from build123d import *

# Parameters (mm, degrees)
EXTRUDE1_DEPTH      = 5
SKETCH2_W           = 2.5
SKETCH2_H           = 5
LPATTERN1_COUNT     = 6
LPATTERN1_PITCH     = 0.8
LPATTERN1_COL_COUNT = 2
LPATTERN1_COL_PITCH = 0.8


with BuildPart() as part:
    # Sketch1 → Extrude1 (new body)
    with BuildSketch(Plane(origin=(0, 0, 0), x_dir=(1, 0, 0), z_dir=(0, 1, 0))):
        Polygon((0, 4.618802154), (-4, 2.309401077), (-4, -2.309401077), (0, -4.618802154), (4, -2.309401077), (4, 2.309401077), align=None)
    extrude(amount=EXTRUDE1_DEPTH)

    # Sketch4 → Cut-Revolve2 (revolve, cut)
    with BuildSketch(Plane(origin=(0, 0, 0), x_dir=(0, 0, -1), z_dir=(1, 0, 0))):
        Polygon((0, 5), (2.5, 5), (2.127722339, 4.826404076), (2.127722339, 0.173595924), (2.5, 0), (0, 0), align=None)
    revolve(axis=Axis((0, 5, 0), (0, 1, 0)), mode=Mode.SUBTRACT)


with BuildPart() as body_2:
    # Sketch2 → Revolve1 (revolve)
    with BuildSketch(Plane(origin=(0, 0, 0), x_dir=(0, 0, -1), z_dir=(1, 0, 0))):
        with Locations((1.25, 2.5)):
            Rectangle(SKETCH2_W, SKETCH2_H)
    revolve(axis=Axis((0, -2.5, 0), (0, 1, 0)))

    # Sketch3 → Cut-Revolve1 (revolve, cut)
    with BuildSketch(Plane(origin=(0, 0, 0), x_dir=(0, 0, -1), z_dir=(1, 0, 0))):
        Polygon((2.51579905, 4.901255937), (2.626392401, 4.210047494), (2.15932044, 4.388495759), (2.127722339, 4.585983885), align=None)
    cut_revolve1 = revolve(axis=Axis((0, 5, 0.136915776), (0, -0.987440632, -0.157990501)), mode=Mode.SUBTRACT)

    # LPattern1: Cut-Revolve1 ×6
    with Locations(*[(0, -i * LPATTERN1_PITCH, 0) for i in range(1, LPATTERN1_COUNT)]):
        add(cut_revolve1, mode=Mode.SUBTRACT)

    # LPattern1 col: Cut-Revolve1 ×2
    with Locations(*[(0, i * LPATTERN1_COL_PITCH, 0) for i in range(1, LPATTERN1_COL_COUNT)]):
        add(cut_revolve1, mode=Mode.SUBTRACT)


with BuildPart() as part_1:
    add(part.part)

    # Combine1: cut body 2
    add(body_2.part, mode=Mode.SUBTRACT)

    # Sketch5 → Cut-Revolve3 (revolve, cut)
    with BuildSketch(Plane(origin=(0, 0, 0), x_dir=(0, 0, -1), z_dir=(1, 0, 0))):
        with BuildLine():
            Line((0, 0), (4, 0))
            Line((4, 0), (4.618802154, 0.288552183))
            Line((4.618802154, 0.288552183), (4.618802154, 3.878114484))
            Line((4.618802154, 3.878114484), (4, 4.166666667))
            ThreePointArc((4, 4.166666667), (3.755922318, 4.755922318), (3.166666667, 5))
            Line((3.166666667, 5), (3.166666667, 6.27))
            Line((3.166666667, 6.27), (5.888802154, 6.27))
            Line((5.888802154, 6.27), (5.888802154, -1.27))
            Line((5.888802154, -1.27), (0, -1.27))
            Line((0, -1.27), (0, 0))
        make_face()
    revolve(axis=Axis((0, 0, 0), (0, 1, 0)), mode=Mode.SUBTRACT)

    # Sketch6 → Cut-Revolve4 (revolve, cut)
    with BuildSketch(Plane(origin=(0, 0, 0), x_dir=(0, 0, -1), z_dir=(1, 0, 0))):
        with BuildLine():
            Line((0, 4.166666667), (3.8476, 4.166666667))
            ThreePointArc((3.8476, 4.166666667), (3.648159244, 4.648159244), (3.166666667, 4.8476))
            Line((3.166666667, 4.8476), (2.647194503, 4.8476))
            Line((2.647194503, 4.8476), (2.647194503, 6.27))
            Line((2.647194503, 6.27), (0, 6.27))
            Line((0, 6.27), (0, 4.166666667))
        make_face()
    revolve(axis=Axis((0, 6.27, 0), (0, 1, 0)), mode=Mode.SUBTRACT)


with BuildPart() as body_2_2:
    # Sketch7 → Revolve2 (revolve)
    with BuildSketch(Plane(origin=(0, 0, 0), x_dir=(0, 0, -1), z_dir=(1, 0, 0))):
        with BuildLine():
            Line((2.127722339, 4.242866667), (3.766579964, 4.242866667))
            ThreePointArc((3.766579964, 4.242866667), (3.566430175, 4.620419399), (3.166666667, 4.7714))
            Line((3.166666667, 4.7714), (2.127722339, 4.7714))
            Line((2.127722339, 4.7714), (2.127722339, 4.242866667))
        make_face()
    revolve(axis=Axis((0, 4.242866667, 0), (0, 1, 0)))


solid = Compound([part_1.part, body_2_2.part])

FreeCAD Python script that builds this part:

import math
import FreeCAD as App
import Part
import Sketcher
from FreeCAD import Vector
Q = App.Units.Quantity

doc = App.newDocument("Part")
params = doc.addObject("Spreadsheet::Sheet", "Params")
for row, (alias, value) in enumerate([
    ("pad1_length", "5 mm"),
    ("sketch2_width", "5 mm"),
    ("sketch2_height", "2.5 mm"),
    ("groove_angle", "360 deg"),
    ("sketch3_width", "5 mm"),
    ("sketch3_height", "2.5 mm"),
    ("revolution_angle", "360 deg"),
    ("sketch4_length", "0.7 mm"),
    ("sketch4_length2", "0.5 mm"),
    ("sketch4_length3", "0.2 mm"),
    ("groove2_angle", "360 deg"),
    ("linearpattern_pitch", "0.8 mm"),
    ("linearpattern2_pitch", "0.8 mm"),
    ("sketch5_height", "4 mm"),
    ("sketch5_width", "1.27 mm"),
    ("groove3_angle", "360 deg"),
    ("groove4_angle", "360 deg"),
    ("revolution2_angle", "360 deg"),
], start=1):
    params.set(f"A{row}", alias)
    params.set(f"B{row}", "=" + value)
    params.setAlias(f"B{row}", alias)

body = doc.addObject("PartDesign::Body", "Body")

# Sketch on XZ plane
sketch1 = doc.addObject("Sketcher::SketchObject", "Sketch")
body.addObject(sketch1)
sketch1.AttachmentSupport = (doc.XZ_Plane, [""])
sketch1.MapMode = "FlatFace"
sketch1.addGeometry(Part.LineSegment(Vector(0, -4.6, 0), Vector(-4, -2.3, 0)), False)
sketch1.addGeometry(Part.LineSegment(Vector(-4, -2.3, 0), Vector(-4, 2.3, 0)), False)
sketch1.addGeometry(Part.LineSegment(Vector(-4, 2.3, 0), Vector(0, 4.6, 0)), False)
sketch1.addGeometry(Part.LineSegment(Vector(0, 4.6, 0), Vector(4, 2.3, 0)), False)
sketch1.addGeometry(Part.LineSegment(Vector(4, 2.3, 0), Vector(4, -2.3, 0)), False)
sketch1.addGeometry(Part.LineSegment(Vector(4, -2.3, 0), Vector(0, -4.6, 0)), False)
sketch1.addConstraint(Sketcher.Constraint("Coincident", 0, 2, 1, 1))
sketch1.addConstraint(Sketcher.Constraint("Coincident", 1, 2, 2, 1))
sketch1.addConstraint(Sketcher.Constraint("Coincident", 2, 2, 3, 1))
sketch1.addConstraint(Sketcher.Constraint("Coincident", 3, 2, 4, 1))
sketch1.addConstraint(Sketcher.Constraint("Coincident", 4, 2, 5, 1))
sketch1.addConstraint(Sketcher.Constraint("Coincident", 5, 2, 0, 1))
sketch1.addConstraint(Sketcher.Constraint("Vertical", 1))
sketch1.addConstraint(Sketcher.Constraint("Vertical", 4))
sketch1.addConstraint(Sketcher.Constraint("Symmetric", 0, 2, 3, 2, -1, 1))
sketch1.addConstraint(Sketcher.Constraint("Symmetric", 2, 2, 5, 2, -1, 1))
sketch1.addConstraint(Sketcher.Constraint("PointOnObject", 2, 2, -2))
sketch1.addConstraint(Sketcher.Constraint("Parallel", 2, 5))
sketch1.addConstraint(Sketcher.Constraint("Horizontal", 1, 2, 3, 2))
sketch1.addConstraint(Sketcher.Constraint("Angle", 0, Q("150 deg")))
sketch1.addConstraint(Sketcher.Constraint("DistanceX", 0, 2, -1, 1, 4.0))
sketch1.addConstraint(Sketcher.Constraint("DistanceY", 0, 2, -1, 1, 2.309401))
pad1 = doc.addObject("PartDesign::Pad", "Pad")
body.addObject(pad1)
pad1.Profile = sketch1
pad1.setExpression("Length", "Params.pad1_length")
pad1.Reversed = True

# Sketch on YZ plane
sketch2 = doc.addObject("Sketcher::SketchObject", "Sketch001")
body.addObject(sketch2)
sketch2.AttachmentSupport = (doc.YZ_Plane, [""])
sketch2.MapMode = "FlatFace"
sketch2.addGeometry(Part.LineSegment(Vector(5, -2.5, 0), Vector(5, 0, 0)), False)
sketch2.addGeometry(Part.LineSegment(Vector(5, 0, 0), Vector(0, 0, 0)), False)
sketch2.addGeometry(Part.LineSegment(Vector(0, 0, 0), Vector(0, -2.5, 0)), False)
sketch2.addGeometry(Part.LineSegment(Vector(0, -2.5, 0), Vector(0.17, -2.13, 0)), False)
sketch2.addGeometry(Part.LineSegment(Vector(0.17, -2.13, 0), Vector(4.83, -2.13, 0)), False)
sketch2.addGeometry(Part.LineSegment(Vector(4.83, -2.13, 0), Vector(5, -2.5, 0)), False)
sketch2.addConstraint(Sketcher.Constraint("Coincident", 0, 2, 1, 1))
sketch2.addConstraint(Sketcher.Constraint("Coincident", 1, 2, 2, 1))
sketch2.addConstraint(Sketcher.Constraint("Coincident", 2, 2, 3, 1))
sketch2.addConstraint(Sketcher.Constraint("Coincident", 3, 2, 4, 1))
sketch2.addConstraint(Sketcher.Constraint("Coincident", 4, 2, 5, 1))
sketch2.addConstraint(Sketcher.Constraint("Coincident", 5, 2, 0, 1))
sketch2.addConstraint(Sketcher.Constraint("Vertical", 0))
sketch2.addConstraint(Sketcher.Constraint("Horizontal", 1))
sketch2.addConstraint(Sketcher.Constraint("Vertical", 2))
sketch2.addConstraint(Sketcher.Constraint("Horizontal", 4))
sketch2.addConstraint(Sketcher.Constraint("Coincident", 1, 2, -1, 1))
sketch2.addConstraint(Sketcher.Constraint("Horizontal", 2, 2, 5, 2))
sketch2.addConstraint(Sketcher.Constraint("Equal", 3, 5))
sketch2.addConstraint(Sketcher.Constraint("DistanceX", 1, 2, 1, 1, 5.0))
sketch2.addConstraint(Sketcher.Constraint("Angle", 3, Q("65 deg")))
sketch2.addConstraint(Sketcher.Constraint("DistanceY", 0, 1, 0, 2, 2.5))
sketch2.addConstraint(Sketcher.Constraint("DistanceX", 4, 1, 4, 2, 4.652808))
sketch2.setExpression("Constraints[13]", "Params.sketch2_width")
sketch2.setExpression("Constraints[15]", "Params.sketch2_height")
groove = doc.addObject("PartDesign::Groove", "Groove")
body.addObject(groove)
groove.Profile = sketch2
groove.ReferenceAxis = (sketch2, ["H_Axis"])
groove.setExpression("Angle", "Params.groove_angle")
body2 = doc.addObject("PartDesign::Body", "Body001")

# Sketch on YZ plane
sketch3 = doc.addObject("Sketcher::SketchObject", "Sketch002")
body2.addObject(sketch3)
sketch3.AttachmentSupport = (doc.getObject("YZ_Plane001"), [""])
sketch3.MapMode = "FlatFace"
sketch3.addGeometry(Part.LineSegment(Vector(5, 0, 0), Vector(0, 0, 0)), False)
sketch3.addGeometry(Part.LineSegment(Vector(0, 0, 0), Vector(0, -2.5, 0)), False)
sketch3.addGeometry(Part.LineSegment(Vector(0, -2.5, 0), Vector(5, -2.5, 0)), False)
sketch3.addGeometry(Part.LineSegment(Vector(5, -2.5, 0), Vector(5, 0, 0)), False)
sketch3.addConstraint(Sketcher.Constraint("Coincident", 0, 2, 1, 1))
sketch3.addConstraint(Sketcher.Constraint("Coincident", 1, 2, 2, 1))
sketch3.addConstraint(Sketcher.Constraint("Coincident", 2, 2, 3, 1))
sketch3.addConstraint(Sketcher.Constraint("Coincident", 3, 2, 0, 1))
sketch3.addConstraint(Sketcher.Constraint("Horizontal", 0))
sketch3.addConstraint(Sketcher.Constraint("Vertical", 1))
sketch3.addConstraint(Sketcher.Constraint("Horizontal", 2))
sketch3.addConstraint(Sketcher.Constraint("Vertical", 3))
sketch3.addConstraint(Sketcher.Constraint("Coincident", 0, 2, -1, 1))
sketch3.addConstraint(Sketcher.Constraint("DistanceX", 0, 2, 0, 1, 5.0))
sketch3.addConstraint(Sketcher.Constraint("DistanceY", 1, 2, 1, 1, 2.5))
sketch3.setExpression("Constraints[9]", "Params.sketch3_width")
sketch3.setExpression("Constraints[10]", "Params.sketch3_height")
revolution = doc.addObject("PartDesign::Revolution", "Revolution")
body2.addObject(revolution)
revolution.Profile = sketch3
revolution.ReferenceAxis = (sketch3, ["H_Axis"])
revolution.setExpression("Angle", "Params.revolution_angle")

# Sketch on YZ plane
sketch4 = doc.addObject("Sketcher::SketchObject", "Sketch003")
body2.addObject(sketch4)
sketch4.AttachmentSupport = (doc.getObject("YZ_Plane001"), [""])
sketch4.MapMode = "FlatFace"
sketch4.addGeometry(Part.LineSegment(Vector(4.21, -2.63, 0), Vector(4.9, -2.52, 0)), False)
sketch4.addGeometry(Part.LineSegment(Vector(4.9, -2.52, 0), Vector(4.59, -2.13, 0)), False)
sketch4.addGeometry(Part.LineSegment(Vector(4.59, -2.13, 0), Vector(4.39, -2.16, 0)), False)
sketch4.addGeometry(Part.LineSegment(Vector(4.39, -2.16, 0), Vector(4.21, -2.63, 0)), False)
sketch4.addGeometry(Part.LineSegment(Vector(4.49, 0.06, 0), Vector(3.8, -0.06, 0)), True)  # axis
sketch4.addConstraint(Sketcher.Constraint("Coincident", 0, 2, 1, 1))
sketch4.addConstraint(Sketcher.Constraint("Coincident", 1, 2, 2, 1))
sketch4.addConstraint(Sketcher.Constraint("Coincident", 2, 2, 3, 1))
sketch4.addConstraint(Sketcher.Constraint("Coincident", 3, 2, 0, 1))
sketch4.addConstraint(Sketcher.Constraint("Parallel", 0, 2))
sketch4.addConstraint(Sketcher.Constraint("Parallel", 2, 4))
sketch4.addConstraint(Sketcher.Constraint("Equal", 1, 3))
sketch4.addConstraint(Sketcher.Constraint("Equal", 0, 4))
sketch4.addConstraint(Sketcher.Constraint("Distance", 0, 0.7))
sketch4.addConstraint(Sketcher.Constraint("Distance", 1, 0.5))
sketch4.addConstraint(Sketcher.Constraint("Distance", 2, 0.2))
sketch4.addConstraint(Sketcher.Constraint("DistanceY", 0, 2, -1, 1, 2.515799))
sketch4.addConstraint(Sketcher.Constraint("DistanceY", 2, 2, 1, 2, 0.031598))
sketch4.addConstraint(Sketcher.Constraint("DistanceX", -1, 1, 4, 1, 4.489881))
sketch4.addConstraint(Sketcher.Constraint("DistanceY", 1, 2, 4, 1, 2.183019))
sketch4.addConstraint(Sketcher.Constraint("DistanceX", 4, 2, 1, 2, 0.787312))
sketch4.setExpression("Constraints[8]", "Params.sketch4_length")
sketch4.setExpression("Constraints[9]", "Params.sketch4_length2")
sketch4.setExpression("Constraints[10]", "Params.sketch4_length3")
groove2 = doc.addObject("PartDesign::Groove", "Groove001")
body2.addObject(groove2)
groove2.Profile = sketch4
groove2.ReferenceAxis = (sketch4, ["Axis0"])
groove2.setExpression("Angle", "Params.groove2_angle")
doc.recompute()

linearpattern = doc.addObject("PartDesign::LinearPattern", "LinearPattern")
body2.addObject(linearpattern)
linearpattern.Originals = [groove2]
linearpattern.Direction = (doc.getObject("Y_Axis001"), [""])
linearpattern.Mode = "offset"
linearpattern.setExpression("Offset", "Params.linearpattern_pitch")
linearpattern.Occurrences = 6
linearpattern.Reversed = True
body2.Tip = linearpattern
doc.recompute()

linearpattern2 = doc.addObject("PartDesign::LinearPattern", "LinearPattern001")
body2.addObject(linearpattern2)
linearpattern2.Originals = [groove2]
linearpattern2.Direction = (doc.getObject("Y_Axis001"), [""])
linearpattern2.Mode = "offset"
linearpattern2.setExpression("Offset", "Params.linearpattern2_pitch")
linearpattern2.Occurrences = 2
body2.Tip = linearpattern2
doc.recompute()

boolean = doc.addObject("PartDesign::Boolean", "Boolean")
body.addObject(boolean)
boolean.Type = "Cut"
boolean.addObjects([body2])

# Sketch on YZ plane
sketch5 = doc.addObject("Sketcher::SketchObject", "Sketch004")
body.addObject(sketch5)
sketch5.AttachmentSupport = (doc.YZ_Plane, [""])
sketch5.MapMode = "FlatFace"
sketch5.addGeometry(Part.LineSegment(Vector(0, -4, 0), Vector(0, 0, 0)), False)
sketch5.addGeometry(Part.LineSegment(Vector(0, 0, 0), Vector(-1.3, 0, 0)), False)
sketch5.addGeometry(Part.LineSegment(Vector(-1.3, 0, 0), Vector(-1.3, -5.9, 0)), False)
sketch5.addGeometry(Part.LineSegment(Vector(-1.3, -5.9, 0), Vector(6.3, -5.9, 0)), False)
sketch5.addGeometry(Part.LineSegment(Vector(6.3, -5.9, 0), Vector(6.3, -3.2, 0)), False)
sketch5.addGeometry(Part.LineSegment(Vector(6.3, -3.2, 0), Vector(5, -3.2, 0)), False)
sketch5.addGeometry(Part.ArcOfCircle(Part.Circle(Vector(4.2, -3.2, 0), Vector(0, 0, 1), 0.8), math.radians(-90), math.radians(0)), False)
sketch5.addGeometry(Part.LineSegment(Vector(4.2, -4, 0), Vector(3.9, -4.6, 0)), False)
sketch5.addGeometry(Part.LineSegment(Vector(3.9, -4.6, 0), Vector(0.3, -4.6, 0)), False)
sketch5.addGeometry(Part.LineSegment(Vector(0.3, -4.6, 0), Vector(0, -4, 0)), False)
sketch5.addConstraint(Sketcher.Constraint("Coincident", 0, 2, 1, 1))
sketch5.addConstraint(Sketcher.Constraint("Coincident", 1, 2, 2, 1))
sketch5.addConstraint(Sketcher.Constraint("Coincident", 2, 2, 3, 1))
sketch5.addConstraint(Sketcher.Constraint("Coincident", 3, 2, 4, 1))
sketch5.addConstraint(Sketcher.Constraint("Coincident", 4, 2, 5, 1))
sketch5.addConstraint(Sketcher.Constraint("Coincident", 5, 2, 6, 2))
sketch5.addConstraint(Sketcher.Constraint("Coincident", 6, 1, 7, 1))
sketch5.addConstraint(Sketcher.Constraint("Coincident", 7, 2, 8, 1))
sketch5.addConstraint(Sketcher.Constraint("Coincident", 8, 2, 9, 1))
sketch5.addConstraint(Sketcher.Constraint("Coincident", 9, 2, 0, 1))
sketch5.addConstraint(Sketcher.Constraint("Vertical", 0))
sketch5.addConstraint(Sketcher.Constraint("Horizontal", 1))
sketch5.addConstraint(Sketcher.Constraint("Vertical", 2))
sketch5.addConstraint(Sketcher.Constraint("Horizontal", 3))
sketch5.addConstraint(Sketcher.Constraint("Vertical", 4))
sketch5.addConstraint(Sketcher.Constraint("Horizontal", 5))
sketch5.addConstraint(Sketcher.Constraint("Horizontal", 8))
sketch5.addConstraint(Sketcher.Constraint("Coincident", 0, 2, -1, 1))
sketch5.addConstraint(Sketcher.Constraint("Horizontal", 6, 3, 4, 2))
sketch5.addConstraint(Sketcher.Constraint("Horizontal", 6, 1, 9, 2))
sketch5.addConstraint(Sketcher.Constraint("Equal", 1, 5))
sketch5.addConstraint(Sketcher.Constraint("Equal", 7, 9))
sketch5.addConstraint(Sketcher.Constraint("DistanceY", 0, 1, 0, 2, 4.0))
sketch5.addConstraint(Sketcher.Constraint("Angle", 7, Q("-115 deg")))
sketch5.addConstraint(Sketcher.Constraint("DistanceX", -1, 1, 5, 2, 5.0))
sketch5.addConstraint(Sketcher.Constraint("DistanceX", 1, 2, 1, 1, 1.27))
sketch5.addConstraint(Sketcher.Constraint("DistanceY", 3, 2, 7, 2, 1.27))
sketch5.addConstraint(Sketcher.Constraint("Radius", 6, 0.833333))
sketch5.addConstraint(Sketcher.Constraint("DistanceX", 8, 2, 8, 1, 3.589562))
sketch5.addConstraint(Sketcher.Constraint("DistanceY", 2, 2, 2, 1, 5.888802))
sketch5.setExpression("Constraints[22]", "Params.sketch5_height")
sketch5.setExpression("Constraints[25]", "Params.sketch5_width")
groove3 = doc.addObject("PartDesign::Groove", "Groove002")
body.addObject(groove3)
groove3.Profile = sketch5
groove3.ReferenceAxis = (sketch5, ["H_Axis"])
groove3.setExpression("Angle", "Params.groove3_angle")

# Sketch on YZ plane
sketch6 = doc.addObject("Sketcher::SketchObject", "Sketch005")
body.addObject(sketch6)
sketch6.AttachmentSupport = (doc.YZ_Plane, [""])
sketch6.MapMode = "FlatFace"
sketch6.addGeometry(Part.LineSegment(Vector(4.2, 0, 0), Vector(4.2, -3.8, 0)), False)
sketch6.addGeometry(Part.ArcOfCircle(Part.Circle(Vector(4.2, -3.2, 0), Vector(0, 0, 1), 0.7), math.radians(-90), math.radians(0)), False)
sketch6.addGeometry(Part.LineSegment(Vector(4.8, -3.2, 0), Vector(4.8, -2.6, 0)), False)
sketch6.addGeometry(Part.LineSegment(Vector(4.8, -2.6, 0), Vector(6.3, -2.6, 0)), False)
sketch6.addGeometry(Part.LineSegment(Vector(6.3, -2.6, 0), Vector(6.3, 0, 0)), False)
sketch6.addGeometry(Part.LineSegment(Vector(6.3, 0, 0), Vector(4.2, 0, 0)), False)
sketch6.addConstraint(Sketcher.Constraint("Coincident", 0, 2, 1, 1))
sketch6.addConstraint(Sketcher.Constraint("Tangent", 1, 2, 2, 1))
sketch6.addConstraint(Sketcher.Constraint("Coincident", 2, 2, 3, 1))
sketch6.addConstraint(Sketcher.Constraint("Coincident", 3, 2, 4, 1))
sketch6.addConstraint(Sketcher.Constraint("Coincident", 4, 2, 5, 1))
sketch6.addConstraint(Sketcher.Constraint("Coincident", 5, 2, 0, 1))
sketch6.addConstraint(Sketcher.Constraint("Vertical", 0))
sketch6.addConstraint(Sketcher.Constraint("Vertical", 2))
sketch6.addConstraint(Sketcher.Constraint("Horizontal", 3))
sketch6.addConstraint(Sketcher.Constraint("Vertical", 4))
sketch6.addConstraint(Sketcher.Constraint("Horizontal", 5))
sketch6.addConstraint(Sketcher.Constraint("PointOnObject", 4, 2, -1))
sketch6.addConstraint(Sketcher.Constraint("Vertical", 1, 3, 0, 2))
sketch6.addConstraint(Sketcher.Constraint("DistanceX", -1, 1, 3, 2, 6.27))
sketch6.addConstraint(Sketcher.Constraint("DistanceX", 3, 1, 3, 2, 1.4224))
sketch6.addConstraint(Sketcher.Constraint("DistanceY", 0, 2, 0, 1, 3.8476))
sketch6.addConstraint(Sketcher.Constraint("Radius", 1, 0.680933))
sketch6.addConstraint(Sketcher.Constraint("DistanceY", 2, 1, 2, 2, 0.519472))
groove4 = doc.addObject("PartDesign::Groove", "Groove003")
body.addObject(groove4)
groove4.Profile = sketch6
groove4.ReferenceAxis = (sketch6, ["H_Axis"])
groove4.setExpression("Angle", "Params.groove4_angle")
body3 = doc.addObject("PartDesign::Body", "Body002")

# Sketch on YZ plane
sketch7 = doc.addObject("Sketcher::SketchObject", "Sketch006")
body3.addObject(sketch7)
sketch7.AttachmentSupport = (doc.getObject("YZ_Plane002"), [""])
sketch7.MapMode = "FlatFace"
sketch7.addGeometry(Part.LineSegment(Vector(4.2, -2.1, 0), Vector(4.2, -3.8, 0)), False)
sketch7.addGeometry(Part.ArcOfCircle(Part.Circle(Vector(4.2, -3.2, 0), Vector(0, 0, 1), 0.6), math.radians(-83), math.radians(0)), False)
sketch7.addGeometry(Part.LineSegment(Vector(4.8, -3.2, 0), Vector(4.8, -2.1, 0)), False)
sketch7.addGeometry(Part.LineSegment(Vector(4.8, -2.1, 0), Vector(4.2, -2.1, 0)), False)
sketch7.addConstraint(Sketcher.Constraint("Coincident", 0, 2, 1, 1))
sketch7.addConstraint(Sketcher.Constraint("Tangent", 1, 2, 2, 1))
sketch7.addConstraint(Sketcher.Constraint("Coincident", 2, 2, 3, 1))
sketch7.addConstraint(Sketcher.Constraint("Coincident", 3, 2, 0, 1))
sketch7.addConstraint(Sketcher.Constraint("Vertical", 0))
sketch7.addConstraint(Sketcher.Constraint("Vertical", 2))
sketch7.addConstraint(Sketcher.Constraint("Horizontal", 3))
sketch7.addConstraint(Sketcher.Constraint("Radius", 1, 0.604733))
sketch7.addConstraint(Sketcher.Constraint("DistanceX", -1, 1, 1, 2, 4.7714))
sketch7.addConstraint(Sketcher.Constraint("DistanceX", 1, 3, 0, 2, 0.0762))
sketch7.addConstraint(Sketcher.Constraint("DistanceY", 0, 2, 0, 1, 1.638858))
sketch7.addConstraint(Sketcher.Constraint("DistanceY", 0, 2, -1, 1, 3.76658))
revolution2 = doc.addObject("PartDesign::Revolution", "Revolution001")
body3.addObject(revolution2)
revolution2.Profile = sketch7
revolution2.ReferenceAxis = (sketch7, ["H_Axis"])
revolution2.setExpression("Angle", "Params.revolution2_angle")

doc.recompute()
